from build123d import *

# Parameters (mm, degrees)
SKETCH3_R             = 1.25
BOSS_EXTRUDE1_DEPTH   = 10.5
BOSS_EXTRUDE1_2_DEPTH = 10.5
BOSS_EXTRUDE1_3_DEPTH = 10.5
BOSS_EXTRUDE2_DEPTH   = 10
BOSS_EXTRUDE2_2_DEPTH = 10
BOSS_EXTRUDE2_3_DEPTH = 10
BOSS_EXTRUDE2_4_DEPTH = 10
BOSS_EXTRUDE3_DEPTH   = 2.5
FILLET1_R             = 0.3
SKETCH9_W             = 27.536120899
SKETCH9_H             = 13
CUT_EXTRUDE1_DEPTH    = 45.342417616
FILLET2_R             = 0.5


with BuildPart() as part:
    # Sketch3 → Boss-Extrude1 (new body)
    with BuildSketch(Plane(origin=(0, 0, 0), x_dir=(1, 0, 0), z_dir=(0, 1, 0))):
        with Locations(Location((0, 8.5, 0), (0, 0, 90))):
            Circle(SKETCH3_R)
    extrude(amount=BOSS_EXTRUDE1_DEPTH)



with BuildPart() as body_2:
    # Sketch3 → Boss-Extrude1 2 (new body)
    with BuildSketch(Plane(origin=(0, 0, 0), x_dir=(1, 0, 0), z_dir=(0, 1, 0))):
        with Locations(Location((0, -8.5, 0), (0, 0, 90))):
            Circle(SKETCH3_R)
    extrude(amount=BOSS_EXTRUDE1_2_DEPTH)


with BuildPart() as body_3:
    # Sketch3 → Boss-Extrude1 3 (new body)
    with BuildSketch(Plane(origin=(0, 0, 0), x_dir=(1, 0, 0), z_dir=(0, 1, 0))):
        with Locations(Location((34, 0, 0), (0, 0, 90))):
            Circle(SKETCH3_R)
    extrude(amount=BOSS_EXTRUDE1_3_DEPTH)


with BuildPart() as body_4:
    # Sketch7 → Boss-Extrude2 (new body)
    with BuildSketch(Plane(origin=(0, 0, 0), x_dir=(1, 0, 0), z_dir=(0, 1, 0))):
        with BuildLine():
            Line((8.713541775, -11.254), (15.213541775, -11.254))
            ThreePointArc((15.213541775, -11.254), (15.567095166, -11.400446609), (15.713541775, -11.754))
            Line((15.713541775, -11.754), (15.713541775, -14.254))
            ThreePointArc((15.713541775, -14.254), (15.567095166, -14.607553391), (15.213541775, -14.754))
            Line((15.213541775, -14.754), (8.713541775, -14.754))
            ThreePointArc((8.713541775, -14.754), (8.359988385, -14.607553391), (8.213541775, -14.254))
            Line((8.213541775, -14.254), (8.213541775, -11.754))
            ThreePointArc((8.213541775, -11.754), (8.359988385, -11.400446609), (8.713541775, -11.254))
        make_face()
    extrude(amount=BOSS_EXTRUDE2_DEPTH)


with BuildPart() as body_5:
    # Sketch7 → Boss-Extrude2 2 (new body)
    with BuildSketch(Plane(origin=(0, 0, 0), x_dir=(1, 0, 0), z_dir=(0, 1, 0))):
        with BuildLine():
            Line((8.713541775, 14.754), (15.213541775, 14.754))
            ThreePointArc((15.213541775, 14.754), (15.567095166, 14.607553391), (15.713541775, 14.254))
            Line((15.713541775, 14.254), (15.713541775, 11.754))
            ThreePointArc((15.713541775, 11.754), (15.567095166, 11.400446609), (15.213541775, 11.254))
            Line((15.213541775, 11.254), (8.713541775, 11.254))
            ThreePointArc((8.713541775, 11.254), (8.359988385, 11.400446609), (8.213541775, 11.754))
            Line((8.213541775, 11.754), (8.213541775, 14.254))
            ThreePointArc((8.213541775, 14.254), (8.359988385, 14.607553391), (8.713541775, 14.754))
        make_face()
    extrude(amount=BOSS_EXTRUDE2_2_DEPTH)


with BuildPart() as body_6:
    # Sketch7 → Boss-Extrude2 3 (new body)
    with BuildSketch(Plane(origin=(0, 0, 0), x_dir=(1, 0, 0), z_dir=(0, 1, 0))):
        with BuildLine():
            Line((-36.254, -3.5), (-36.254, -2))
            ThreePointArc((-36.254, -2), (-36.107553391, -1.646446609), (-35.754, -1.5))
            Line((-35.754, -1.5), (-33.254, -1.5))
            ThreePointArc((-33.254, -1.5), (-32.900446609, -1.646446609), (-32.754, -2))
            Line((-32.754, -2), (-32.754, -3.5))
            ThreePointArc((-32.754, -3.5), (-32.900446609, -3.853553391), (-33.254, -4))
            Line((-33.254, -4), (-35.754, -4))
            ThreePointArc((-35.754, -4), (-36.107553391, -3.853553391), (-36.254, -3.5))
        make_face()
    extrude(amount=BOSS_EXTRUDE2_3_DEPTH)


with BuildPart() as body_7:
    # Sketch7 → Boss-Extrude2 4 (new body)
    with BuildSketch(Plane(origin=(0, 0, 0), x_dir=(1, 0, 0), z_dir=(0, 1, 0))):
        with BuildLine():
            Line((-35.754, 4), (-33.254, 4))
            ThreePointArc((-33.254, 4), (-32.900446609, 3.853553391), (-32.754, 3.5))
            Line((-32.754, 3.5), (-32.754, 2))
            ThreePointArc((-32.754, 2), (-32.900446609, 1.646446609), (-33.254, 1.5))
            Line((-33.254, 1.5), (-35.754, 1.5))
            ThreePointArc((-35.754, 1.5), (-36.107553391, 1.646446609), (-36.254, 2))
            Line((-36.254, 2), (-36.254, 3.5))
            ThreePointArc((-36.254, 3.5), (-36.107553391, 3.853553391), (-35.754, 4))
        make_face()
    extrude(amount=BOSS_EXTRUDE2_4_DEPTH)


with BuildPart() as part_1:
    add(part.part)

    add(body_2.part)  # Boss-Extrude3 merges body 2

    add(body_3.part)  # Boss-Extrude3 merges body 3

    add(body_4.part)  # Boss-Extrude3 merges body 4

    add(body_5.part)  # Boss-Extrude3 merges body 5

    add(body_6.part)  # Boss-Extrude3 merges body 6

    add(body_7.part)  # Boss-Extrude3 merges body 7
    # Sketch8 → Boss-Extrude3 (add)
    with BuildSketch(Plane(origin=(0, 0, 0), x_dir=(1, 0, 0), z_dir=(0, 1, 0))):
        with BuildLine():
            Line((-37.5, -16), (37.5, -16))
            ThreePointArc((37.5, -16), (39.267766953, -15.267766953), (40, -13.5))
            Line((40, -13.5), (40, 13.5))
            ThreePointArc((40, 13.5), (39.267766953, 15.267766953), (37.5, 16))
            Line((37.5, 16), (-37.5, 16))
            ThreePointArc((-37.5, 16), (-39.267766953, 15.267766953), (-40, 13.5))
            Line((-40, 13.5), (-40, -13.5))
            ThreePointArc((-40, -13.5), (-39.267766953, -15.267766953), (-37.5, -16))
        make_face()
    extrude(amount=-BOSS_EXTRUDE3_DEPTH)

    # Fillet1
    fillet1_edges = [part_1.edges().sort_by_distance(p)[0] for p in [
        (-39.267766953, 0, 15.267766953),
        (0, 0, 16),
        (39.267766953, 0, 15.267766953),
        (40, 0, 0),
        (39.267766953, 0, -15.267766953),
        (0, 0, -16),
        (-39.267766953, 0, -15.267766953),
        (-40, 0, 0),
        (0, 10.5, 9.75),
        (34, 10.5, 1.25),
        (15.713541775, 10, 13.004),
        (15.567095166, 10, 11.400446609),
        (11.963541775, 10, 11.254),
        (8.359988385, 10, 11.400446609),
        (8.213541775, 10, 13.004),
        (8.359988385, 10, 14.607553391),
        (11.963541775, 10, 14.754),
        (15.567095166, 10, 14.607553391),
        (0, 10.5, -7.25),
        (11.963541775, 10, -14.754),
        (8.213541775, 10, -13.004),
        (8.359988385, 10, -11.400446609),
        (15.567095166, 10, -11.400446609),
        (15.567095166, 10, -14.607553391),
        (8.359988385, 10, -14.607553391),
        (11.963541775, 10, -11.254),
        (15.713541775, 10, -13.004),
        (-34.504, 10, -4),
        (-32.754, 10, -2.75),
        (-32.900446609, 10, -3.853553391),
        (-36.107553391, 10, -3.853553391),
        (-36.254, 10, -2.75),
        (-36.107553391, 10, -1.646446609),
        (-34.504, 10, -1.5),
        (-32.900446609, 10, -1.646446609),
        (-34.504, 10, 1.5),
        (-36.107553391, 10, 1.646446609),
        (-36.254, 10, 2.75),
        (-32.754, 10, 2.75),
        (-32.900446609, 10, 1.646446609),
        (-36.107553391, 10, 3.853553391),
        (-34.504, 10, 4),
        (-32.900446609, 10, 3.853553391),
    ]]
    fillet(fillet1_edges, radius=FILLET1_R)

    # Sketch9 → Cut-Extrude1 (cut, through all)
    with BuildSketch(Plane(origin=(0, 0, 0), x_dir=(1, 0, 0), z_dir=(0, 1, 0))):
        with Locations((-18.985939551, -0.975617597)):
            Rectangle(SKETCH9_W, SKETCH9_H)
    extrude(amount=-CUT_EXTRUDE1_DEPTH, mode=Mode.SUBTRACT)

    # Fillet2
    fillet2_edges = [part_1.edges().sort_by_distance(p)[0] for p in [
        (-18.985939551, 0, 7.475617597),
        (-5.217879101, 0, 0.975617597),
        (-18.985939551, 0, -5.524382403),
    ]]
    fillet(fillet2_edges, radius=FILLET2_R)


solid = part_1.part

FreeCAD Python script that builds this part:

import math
import FreeCAD as App
import Part
import Sketcher
from FreeCAD import Vector
Q = App.Units.Quantity


def edges_at(feature, points):
    """Names of the edges that pass closest to the given points."""
    edges = feature.Shape.Edges
    near = lambda p: min(range(len(edges)), key=lambda i: edges[i].distToShape(Part.Vertex(*p))[0])
    return sorted({f"Edge{near(p) + 1}" for p in points})


def add_polygon(sketch, points):
    """Adds a closed chain of lines whose ends are joined by coincident constraints."""
    first, n = sketch.GeometryCount, len(points)
    for a, b in zip(points, points[1:] + points[:1]):
        sketch.addGeometry(Part.LineSegment(App.Vector(*a, 0), App.Vector(*b, 0)), False)
    for i in range(n):
        sketch.addConstraint(Sketcher.Constraint("Coincident", first + i, 2, first + (i + 1) % n, 1))

doc = App.newDocument("Part")
body = doc.addObject("PartDesign::Body", "Body")

# Sketch on XZ plane
sketch1 = body.newObject("Sketcher::SketchObject", "Sketch")
sketch1.AttachmentSupport = (doc.getObject("XZ_Plane"), [""])
sketch1.MapMode = "FlatFace"
sketch1.addGeometry(Part.Circle(Vector(0, -8.5, 0), Vector(0, 0, 1), 1.25), False)
sketch1.addConstraint([
    Sketcher.Constraint("PointOnObject", 0, 3, -2),
    Sketcher.Constraint("Diameter", 0, Q("2.5 mm")),
    Sketcher.Constraint("DistanceY", 0, 3, -1, 1, Q("8.5 mm")),
])
pad1 = body.newObject("PartDesign::Pad", "Pad")
pad1.Profile = sketch1
pad1.Length = 10.5
pad1.Reversed = True
body2 = doc.addObject("PartDesign::Body", "Body001")

# Sketch on XZ plane
sketch2 = body2.newObject("Sketcher::SketchObject", "Sketch001")
sketch2.AttachmentSupport = (doc.getObject("XZ_Plane001"), [""])
sketch2.MapMode = "FlatFace"
sketch2.addGeometry(Part.Circle(Vector(0, 8.5, 0), Vector(0, 0, 1), 1.25), False)
sketch2.addConstraint([
    Sketcher.Constraint("PointOnObject", 0, 3, -2),
    Sketcher.Constraint("Diameter", 0, Q("2.5 mm")),
    Sketcher.Constraint("DistanceY", -1, 1, 0, 3, Q("8.5 mm")),
])
pad2 = body2.newObject("PartDesign::Pad", "Pad001")
pad2.Profile = sketch2
pad2.Length = 10.5
pad2.Reversed = True
body3 = doc.addObject("PartDesign::Body", "Body002")

# Sketch on XZ plane
sketch3 = body3.newObject("Sketcher::SketchObject", "Sketch002")
sketch3.AttachmentSupport = (doc.getObject("XZ_Plane002"), [""])
sketch3.MapMode = "FlatFace"
sketch3.addGeometry(Part.Circle(Vector(34, 0, 0), Vector(0, 0, 1), 1.25), False)
sketch3.addConstraint([
    Sketcher.Constraint("PointOnObject", 0, 3, -1),
    Sketcher.Constraint("Diameter", 0, Q("2.5 mm")),
    Sketcher.Constraint("DistanceX", -1, 1, 0, 3, Q("34 mm")),
])
pad3 = body3.newObject("PartDesign::Pad", "Pad002")
pad3.Profile = sketch3
pad3.Length = 10.5
pad3.Reversed = True
body4 = doc.addObject("PartDesign::Body", "Body003")

# Sketch on XZ plane
sketch4 = body4.newObject("Sketcher::SketchObject", "Sketch003")
sketch4.AttachmentSupport = (doc.getObject("XZ_Plane003"), [""])
sketch4.MapMode = "FlatFace"
sketch4.addGeometry([
    Part.LineSegment(Vector(15.213542, 11.254, 0), Vector(8.713542, 11.254, 0)),  # 0
    Part.ArcOfCircle(Part.Circle(Vector(8.713542, 11.754, 0), Vector(0, 0, 1), 0.5), math.radians(180), math.radians(270)),  # 1
    Part.LineSegment(Vector(8.213542, 11.754, 0), Vector(8.213542, 14.254, 0)),  # 2
    Part.ArcOfCircle(Part.Circle(Vector(8.713542, 14.254, 0), Vector(0, 0, 1), 0.5), math.radians(90), math.radians(180)),  # 3
    Part.LineSegment(Vector(8.713542, 14.754, 0), Vector(15.213542, 14.754, 0)),  # 4
    Part.ArcOfCircle(Part.Circle(Vector(15.213542, 14.254, 0), Vector(0, 0, 1), 0.5), math.radians(0), math.radians(90)),  # 5
    Part.LineSegment(Vector(15.713542, 14.254, 0), Vector(15.713542, 11.754, 0)),  # 6
    Part.ArcOfCircle(Part.Circle(Vector(15.213542, 11.754, 0), Vector(0, 0, 1), 0.5), math.radians(-90), math.radians(0)),  # 7
], False)
sketch4.addConstraint([
    Sketcher.Constraint("Tangent", 0, 2, 1, 2),
    Sketcher.Constraint("Tangent", 1, 1, 2, 1),
    Sketcher.Constraint("Tangent", 2, 2, 3, 2),
    Sketcher.Constraint("Tangent", 3, 1, 4, 1),
    Sketcher.Constraint("Tangent", 4, 2, 5, 2),
    Sketcher.Constraint("Tangent", 5, 1, 6, 1),
    Sketcher.Constraint("Tangent", 6, 2, 7, 2),
    Sketcher.Constraint("Tangent", 7, 1, 0, 1),
    Sketcher.Constraint("Horizontal", 0),
    Sketcher.Constraint("Vertical", 2),
    Sketcher.Constraint("Horizontal", 4),
    Sketcher.Constraint("Vertical", 6),
    Sketcher.Constraint("Equal", 1, 3),
    Sketcher.Constraint("Equal", 3, 5),
    Sketcher.Constraint("Equal", 5, 7),
    Sketcher.Constraint("Radius", 1, Q("0.5 mm")),
    Sketcher.Constraint("DistanceX", 0, 2, 0, 1, Q("6.5 mm")),
    Sketcher.Constraint("DistanceY", 2, 1, 2, 2, Q("2.5 mm")),
    Sketcher.Constraint("DistanceY", -1, 1, 1, 3, Q("11.754 mm")),
    Sketcher.Constraint("DistanceX", -1, 1, 1, 3, Q("8.713542 mm")),
])
pad4 = body4.newObject("PartDesign::Pad", "Pad003")
pad4.Profile = sketch4
pad4.Length = 10
pad4.Reversed = True
body5 = doc.addObject("PartDesign::Body", "Body004")

# Sketch on XZ plane
sketch5 = body5.newObject("Sketcher::SketchObject", "Sketch004")
sketch5.AttachmentSupport = (doc.getObject("XZ_Plane004"), [""])
sketch5.MapMode = "FlatFace"
sketch5.addGeometry([
    Part.LineSegment(Vector(15.213542, -14.754, 0), Vector(8.713542, -14.754, 0)),  # 0
    Part.ArcOfCircle(Part.Circle(Vector(8.713542, -14.254, 0), Vector(0, 0, 1), 0.5), math.radians(180), math.radians(270)),  # 1
    Part.LineSegment(Vector(8.213542, -14.254, 0), Vector(8.213542, -11.754, 0)),  # 2
    Part.ArcOfCircle(Part.Circle(Vector(8.713542, -11.754, 0), Vector(0, 0, 1), 0.5), math.radians(90), math.radians(180)),  # 3
    Part.LineSegment(Vector(8.713542, -11.254, 0), Vector(15.213542, -11.254, 0)),  # 4
    Part.ArcOfCircle(Part.Circle(Vector(15.213542, -11.754, 0), Vector(0, 0, 1), 0.5), math.radians(0), math.radians(90)),  # 5
    Part.LineSegment(Vector(15.713542, -11.754, 0), Vector(15.713542, -14.254, 0)),  # 6
    Part.ArcOfCircle(Part.Circle(Vector(15.213542, -14.254, 0), Vector(0, 0, 1), 0.5), math.radians(-90), math.radians(0)),  # 7
], False)
sketch5.addConstraint([
    Sketcher.Constraint("Tangent", 0, 2, 1, 2),
    Sketcher.Constraint("Tangent", 1, 1, 2, 1),
    Sketcher.Constraint("Tangent", 2, 2, 3, 2),
    Sketcher.Constraint("Tangent", 3, 1, 4, 1),
    Sketcher.Constraint("Tangent", 4, 2, 5, 2),
    Sketcher.Constraint("Tangent", 5, 1, 6, 1),
    Sketcher.Constraint("Tangent", 6, 2, 7, 2),
    Sketcher.Constraint("Tangent", 7, 1, 0, 1),
    Sketcher.Constraint("Horizontal", 0),
    Sketcher.Constraint("Vertical", 2),
    Sketcher.Constraint("Horizontal", 4),
    Sketcher.Constraint("Vertical", 6),
    Sketcher.Constraint("Equal", 1, 3),
    Sketcher.Constraint("Equal", 3, 5),
    Sketcher.Constraint("Equal", 5, 7),
    Sketcher.Constraint("Radius", 1, Q("0.5 mm")),
    Sketcher.Constraint("DistanceX", 0, 2, 0, 1, Q("6.5 mm")),
    Sketcher.Constraint("DistanceY", 2, 1, 2, 2, Q("2.5 mm")),
    Sketcher.Constraint("DistanceY", 1, 3, -1, 1, Q("14.254 mm")),
    Sketcher.Constraint("DistanceX", -1, 1, 1, 3, Q("8.713542 mm")),
])
pad5 = body5.newObject("PartDesign::Pad", "Pad004")
pad5.Profile = sketch5
pad5.Length = 10
pad5.Reversed = True
body6 = doc.addObject("PartDesign::Body", "Body005")

# Sketch on XZ plane
sketch6 = body6.newObject("Sketcher::SketchObject", "Sketch005")
sketch6.AttachmentSupport = (doc.getObject("XZ_Plane005"), [""])
sketch6.MapMode = "FlatFace"
sketch6.addGeometry([
    Part.LineSegment(Vector(-36.254, 2, 0), Vector(-36.254, 3.5, 0)),  # 0
    Part.ArcOfCircle(Part.Circle(Vector(-35.754, 3.5, 0), Vector(0, 0, 1), 0.5), math.radians(90), math.radians(180)),  # 1
    Part.LineSegment(Vector(-35.754, 4, 0), Vector(-33.254, 4, 0)),  # 2
    Part.ArcOfCircle(Part.Circle(Vector(-33.254, 3.5, 0), Vector(0, 0, 1), 0.5), math.radians(0), math.radians(90)),  # 3
    Part.LineSegment(Vector(-32.754, 3.5, 0), Vector(-32.754, 2, 0)),  # 4
    Part.ArcOfCircle(Part.Circle(Vector(-33.254, 2, 0), Vector(0, 0, 1), 0.5), math.radians(-90), math.radians(0)),  # 5
    Part.LineSegment(Vector(-33.254, 1.5, 0), Vector(-35.754, 1.5, 0)),  # 6
    Part.ArcOfCircle(Part.Circle(Vector(-35.754, 2, 0), Vector(0, 0, 1), 0.5), math.radians(180), math.radians(270)),  # 7
], False)
sketch6.addConstraint([
    Sketcher.Constraint("Tangent", 0, 2, 1, 2),
    Sketcher.Constraint("Tangent", 1, 1, 2, 1),
    Sketcher.Constraint("Tangent", 2, 2, 3, 2),
    Sketcher.Constraint("Tangent", 3, 1, 4, 1),
    Sketcher.Constraint("Tangent", 4, 2, 5, 2),
    Sketcher.Constraint("Tangent", 5, 1, 6, 1),
    Sketcher.Constraint("Tangent", 6, 2, 7, 2),
    Sketcher.Constraint("Tangent", 7, 1, 0, 1),
    Sketcher.Constraint("Vertical", 0),
    Sketcher.Constraint("Horizontal", 2),
    Sketcher.Constraint("Vertical", 4),
    Sketcher.Constraint("Horizontal", 6),
    Sketcher.Constraint("Equal", 1, 3),
    Sketcher.Constraint("Equal", 3, 5),
    Sketcher.Constraint("Equal", 5, 7),
    Sketcher.Constraint("Radius", 1, Q("0.5 mm")),
    Sketcher.Constraint("DistanceX", 2, 1, 2, 2, Q("2.5 mm")),
    Sketcher.Constraint("DistanceY", 0, 1, 0, 2, Q("1.5 mm")),
    Sketcher.Constraint("DistanceY", -1, 1, 5, 3, Q("2 mm")),
    Sketcher.Constraint("DistanceX", 1, 3, -1, 1, Q("35.754 mm")),
])
pad6 = body6.newObject("PartDesign::Pad", "Pad005")
pad6.Profile = sketch6
pad6.Length = 10
pad6.Reversed = True
body7 = doc.addObject("PartDesign::Body", "Body006")

# Sketch on XZ plane
sketch7 = body7.newObject("Sketcher::SketchObject", "Sketch006")
sketch7.AttachmentSupport = (doc.getObject("XZ_Plane006"), [""])
sketch7.MapMode = "FlatFace"
sketch7.addGeometry([
    Part.LineSegment(Vector(-33.254, -4, 0), Vector(-35.754, -4, 0)),  # 0
    Part.ArcOfCircle(Part.Circle(Vector(-35.754, -3.5, 0), Vector(0, 0, 1), 0.5), math.radians(180), math.radians(270)),  # 1
    Part.LineSegment(Vector(-36.254, -3.5, 0), Vector(-36.254, -2, 0)),  # 2
    Part.ArcOfCircle(Part.Circle(Vector(-35.754, -2, 0), Vector(0, 0, 1), 0.5), math.radians(90), math.radians(180)),  # 3
    Part.LineSegment(Vector(-35.754, -1.5, 0), Vector(-33.254, -1.5, 0)),  # 4
    Part.ArcOfCircle(Part.Circle(Vector(-33.254, -2, 0), Vector(0, 0, 1), 0.5), math.radians(0), math.radians(90)),  # 5
    Part.LineSegment(Vector(-32.754, -2, 0), Vector(-32.754, -3.5, 0)),  # 6
    Part.ArcOfCircle(Part.Circle(Vector(-33.254, -3.5, 0), Vector(0, 0, 1), 0.5), math.radians(-90), math.radians(0)),  # 7
], False)
sketch7.addConstraint([
    Sketcher.Constraint("Tangent", 0, 2, 1, 2),
    Sketcher.Constraint("Tangent", 1, 1, 2, 1),
    Sketcher.Constraint("Tangent", 2, 2, 3, 2),
    Sketcher.Constraint("Tangent", 3, 1, 4, 1),
    Sketcher.Constraint("Tangent", 4, 2, 5, 2),
    Sketcher.Constraint("Tangent", 5, 1, 6, 1),
    Sketcher.Constraint("Tangent", 6, 2, 7, 2),
    Sketcher.Constraint("Tangent", 7, 1, 0, 1),
    Sketcher.Constraint("Horizontal", 0),
    Sketcher.Constraint("Vertical", 2),
    Sketcher.Constraint("Horizontal", 4),
    Sketcher.Constraint("Vertical", 6),
    Sketcher.Constraint("Equal", 1, 3),
    Sketcher.Constraint("Equal", 3, 5),
    Sketcher.Constraint("Equal", 5, 7),
    Sketcher.Constraint("Radius", 1, Q("0.5 mm")),
    Sketcher.Constraint("DistanceX", 0, 2, 0, 1, Q("2.5 mm")),
    Sketcher.Constraint("DistanceY", 2, 1, 2, 2, Q("1.5 mm")),
    Sketcher.Constraint("DistanceY", 3, 3, -1, 1, Q("2 mm")),
    Sketcher.Constraint("DistanceX", 1, 3, -1, 1, Q("35.754 mm")),
])
pad7 = body7.newObject("PartDesign::Pad", "Pad006")
pad7.Profile = sketch7
pad7.Length = 10
pad7.Reversed = True
body.AllowCompound = True
doc.recompute()

boolean = body.newObject("PartDesign::Boolean", "Boolean")
boolean.Type = "Fuse"
boolean.addObjects([body2])
doc.recompute()

boolean2 = body.newObject("PartDesign::Boolean", "Boolean001")
boolean2.Type = "Fuse"
boolean2.addObjects([body3])
doc.recompute()

boolean3 = body.newObject("PartDesign::Boolean", "Boolean002")
boolean3.Type = "Fuse"
boolean3.addObjects([body4])
doc.recompute()

boolean4 = body.newObject("PartDesign::Boolean", "Boolean003")
boolean4.Type = "Fuse"
boolean4.addObjects([body5])
doc.recompute()

boolean5 = body.newObject("PartDesign::Boolean", "Boolean004")
boolean5.Type = "Fuse"
boolean5.addObjects([body6])
doc.recompute()

boolean6 = body.newObject("PartDesign::Boolean", "Boolean005")
boolean6.Type = "Fuse"
boolean6.addObjects([body7])

# Sketch on XZ plane
sketch8 = body.newObject("Sketcher::SketchObject", "Sketch007")
sketch8.AttachmentSupport = (doc.getObject("XZ_Plane"), [""])
sketch8.MapMode = "FlatFace"
sketch8.addGeometry([
    Part.LineSegment(Vector(-37.5, 16, 0), Vector(37.5, 16, 0)),  # 0
    Part.ArcOfCircle(Part.Circle(Vector(37.5, 13.5, 0), Vector(0, 0, 1), 2.5), math.radians(0), math.radians(90)),  # 1
    Part.LineSegment(Vector(40, 13.5, 0), Vector(40, -13.5, 0)),  # 2
    Part.ArcOfCircle(Part.Circle(Vector(37.5, -13.5, 0), Vector(0, 0, 1), 2.5), math.radians(-90), math.radians(0)),  # 3
    Part.LineSegment(Vector(37.5, -16, 0), Vector(-37.5, -16, 0)),  # 4
    Part.ArcOfCircle(Part.Circle(Vector(-37.5, -13.5, 0), Vector(0, 0, 1), 2.5), math.radians(180), math.radians(270)),  # 5
    Part.LineSegment(Vector(-40, -13.5, 0), Vector(-40, 13.5, 0)),  # 6
    Part.ArcOfCircle(Part.Circle(Vector(-37.5, 13.5, 0), Vector(0, 0, 1), 2.5), math.radians(90), math.radians(180)),  # 7
], False)
sketch8.addConstraint([
    Sketcher.Constraint("Tangent", 0, 2, 1, 2),
    Sketcher.Constraint("Tangent", 1, 1, 2, 1),
    Sketcher.Constraint("Tangent", 2, 2, 3, 2),
    Sketcher.Constraint("Tangent", 3, 1, 4, 1),
    Sketcher.Constraint("Tangent", 4, 2, 5, 2),
    Sketcher.Constraint("Tangent", 5, 1, 6, 1),
    Sketcher.Constraint("Tangent", 6, 2, 7, 2),
    Sketcher.Constraint("Tangent", 7, 1, 0, 1),
    Sketcher.Constraint("Horizontal", 0),
    Sketcher.Constraint("Vertical", 2),
    Sketcher.Constraint("Horizontal", 4),
    Sketcher.Constraint("Vertical", 6),
    Sketcher.Constraint("Equal", 1, 3),
    Sketcher.Constraint("Equal", 3, 5),
    Sketcher.Constraint("Equal", 5, 7),
    Sketcher.Constraint("Symmetric", 1, 3, 5, 3, -1, 1),
    Sketcher.Constraint("Radius", 1, Q("2.5 mm")),
    Sketcher.Constraint("DistanceX", 0, 1, 0, 2, Q("75 mm")),
    Sketcher.Constraint("DistanceY", 2, 2, 2, 1, Q("27 mm")),
])
pad8 = body.newObject("PartDesign::Pad", "Pad007")
pad8.Profile = sketch8
pad8.Length = 2.5
doc.recompute()

fillet = body.newObject("PartDesign::Fillet", "Fillet")
fillet.Base = (pad8, edges_at(pad8, [
    (-39.268, 0, 15.268),
    (0, 0, 16),
    (39.268, 0, 15.268),
    (40, 0, 0),
    (39.268, 0, -15.268),
    (0, 0, -16),
    (-39.268, 0, -15.268),
    (-40, 0, 0),
    (0, 10.5, 9.75),
    (34, 10.5, 1.25),
    (15.714, 10, 13.004),
    (15.567, 10, 11.4),
    (11.964, 10, 11.254),
    (8.36, 10, 11.4),
    (8.214, 10, 13.004),
    (8.36, 10, 14.608),
    (11.964, 10, 14.754),
    (15.567, 10, 14.608),
    (0, 10.5, -7.25),
    (11.964, 10, -14.754),
    (8.214, 10, -13.004),
    (8.36, 10, -11.4),
    (15.567, 10, -11.4),
    (15.567, 10, -14.608),
    (8.36, 10, -14.608),
    (11.964, 10, -11.254),
    (15.714, 10, -13.004),
    (-34.504, 10, -4),
    (-32.754, 10, -2.75),
    (-32.9, 10, -3.854),
    (-36.108, 10, -3.854),
    (-36.254, 10, -2.75),
    (-36.108, 10, -1.646),
    (-34.504, 10, -1.5),
    (-32.9, 10, -1.646),
    (-34.504, 10, 1.5),
    (-36.108, 10, 1.646),
    (-36.254, 10, 2.75),
    (-32.754, 10, 2.75),
    (-32.9, 10, 1.646),
    (-36.108, 10, 3.854),
    (-34.504, 10, 4),
    (-32.9, 10, 3.854),
]))
fillet.Radius = 0.3

# Sketch on XZ plane
sketch9 = body.newObject("Sketcher::SketchObject", "Sketch008")
sketch9.AttachmentSupport = (doc.getObject("XZ_Plane"), [""])
sketch9.MapMode = "FlatFace"
add_polygon(sketch9, [(-32.754, -5.524382), (-32.754, 7.475618), (-5.217879, 7.475618), (-5.217879, -5.524382)])  # lines 0-3
sketch9.addConstraint([
    Sketcher.Constraint("Vertical", 0),
    Sketcher.Constraint("Horizontal", 1),
    Sketcher.Constraint("Vertical", 2),
    Sketcher.Constraint("Horizontal", 3),
    Sketcher.Constraint("DistanceY", 0, 1, 0, 2, Q("13 mm")),
    Sketcher.Constraint("DistanceX", 0, 2, -1, 1, Q("32.754 mm")),
    Sketcher.Constraint("DistanceX", 1, 1, 1, 2, Q("27.536121 mm")),
    Sketcher.Constraint("DistanceY", -1, 1, 0, 2, Q("7.475618 mm")),
])
pocket1 = body.newObject("PartDesign::Pocket", "Pocket")
pocket1.Profile = sketch9
pocket1.Type = "ThroughAll"
pocket1.Reversed = True
doc.recompute()

fillet2 = body.newObject("PartDesign::Fillet", "Fillet001")
fillet2.Base = (pocket1, edges_at(pocket1, [(-18.986, 0, 7.476), (-5.218, 0, 0.976), (-18.986, 0, -5.524)]))
fillet2.Radius = 0.5

doc.recompute()
